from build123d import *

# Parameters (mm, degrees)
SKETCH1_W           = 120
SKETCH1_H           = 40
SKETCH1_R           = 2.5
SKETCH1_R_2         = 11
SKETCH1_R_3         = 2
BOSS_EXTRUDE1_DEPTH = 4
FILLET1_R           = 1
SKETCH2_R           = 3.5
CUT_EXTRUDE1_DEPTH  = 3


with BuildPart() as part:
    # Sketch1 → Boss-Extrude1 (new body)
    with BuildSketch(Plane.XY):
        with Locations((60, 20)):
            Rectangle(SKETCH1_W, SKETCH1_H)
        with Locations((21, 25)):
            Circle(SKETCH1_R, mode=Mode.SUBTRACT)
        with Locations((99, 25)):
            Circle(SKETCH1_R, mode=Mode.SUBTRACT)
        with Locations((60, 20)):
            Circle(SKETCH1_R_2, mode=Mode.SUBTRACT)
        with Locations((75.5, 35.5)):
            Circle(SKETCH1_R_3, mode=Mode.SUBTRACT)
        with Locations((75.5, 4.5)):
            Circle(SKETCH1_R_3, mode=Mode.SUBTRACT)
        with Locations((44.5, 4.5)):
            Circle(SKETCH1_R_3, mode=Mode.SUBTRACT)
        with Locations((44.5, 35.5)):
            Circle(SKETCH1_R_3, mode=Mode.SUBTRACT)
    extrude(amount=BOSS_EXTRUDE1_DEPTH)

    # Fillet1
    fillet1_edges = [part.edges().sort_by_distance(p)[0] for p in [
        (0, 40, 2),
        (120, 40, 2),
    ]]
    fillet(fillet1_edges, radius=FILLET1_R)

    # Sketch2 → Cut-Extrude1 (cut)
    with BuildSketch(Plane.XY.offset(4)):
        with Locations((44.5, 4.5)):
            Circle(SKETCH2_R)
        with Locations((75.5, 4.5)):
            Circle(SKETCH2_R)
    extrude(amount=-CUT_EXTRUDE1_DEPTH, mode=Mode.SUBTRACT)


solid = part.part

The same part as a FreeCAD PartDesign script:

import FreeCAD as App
import Part
import Sketcher
from FreeCAD import Vector


def edges_at(feature, points):
    """Names of the edges that pass closest to the given points."""
    edges = feature.Shape.Edges
    near = lambda p: min(range(len(edges)), key=lambda i: edges[i].distToShape(Part.Vertex(*p))[0])
    return sorted({f"Edge{near(p) + 1}" for p in points})


def add_polygon(sketch, points):
    """Adds a closed chain of lines whose ends are joined by coincident constraints."""
    first, n = sketch.GeometryCount, len(points)
    for a, b in zip(points, points[1:] + points[:1]):
        sketch.addGeometry(Part.LineSegment(App.Vector(*a, 0), App.Vector(*b, 0)), False)
    for i in range(n):
        sketch.addConstraint(Sketcher.Constraint("Coincident", first + i, 2, first + (i + 1) % n, 1))

doc = App.newDocument("Part")
params = doc.addObject("Spreadsheet::Sheet", "Params")
for row, (alias, value) in enumerate([
    ("sketch1_diameter", "4 mm"),
    ("sketch1_diameter2", "5 mm"),
    ("sketch1_diameter3", "22 mm"),
    ("sketch1_width", "120 mm"),
    ("sketch1_height", "40 mm"),
    ("pad1_length", "4 mm"),
    ("fillet_radius", "1 mm"),
    ("sketch2_diameter", "7 mm"),
    ("pocket1_length", "3 mm"),
], start=1):
    params.set(f"A{row}", alias)
    params.set(f"B{row}", "=" + value)
    params.setAlias(f"B{row}", alias)

body = doc.addObject("PartDesign::Body", "Body")

sketch1 = body.newObject("Sketcher::SketchObject", "Sketch")
sketch1.AttachmentSupport = (doc.getObject("XY_Plane"), [""])
sketch1.MapMode = "FlatFace"
add_polygon(sketch1, [(0, 40), (0, 0), (120, 0), (120, 40)])
sketch1.addGeometry(Part.Circle(Vector(44.5, 4.5, 0), Vector(0, 0, 1), 2), False)
sketch1.addGeometry(Part.Circle(Vector(75.5, 4.5, 0), Vector(0, 0, 1), 2), False)
sketch1.addGeometry(Part.Circle(Vector(21, 25, 0), Vector(0, 0, 1), 2.5), False)
sketch1.addGeometry(Part.Circle(Vector(44.5, 35.5, 0), Vector(0, 0, 1), 2), False)
sketch1.addGeometry(Part.Circle(Vector(60, 20, 0), Vector(0, 0, 1), 11), False)
sketch1.addGeometry(Part.Circle(Vector(99, 25, 0), Vector(0, 0, 1), 2.5), False)
sketch1.addGeometry(Part.Circle(Vector(75.5, 35.5, 0), Vector(0, 0, 1), 2), False)
sketch1.addConstraint(Sketcher.Constraint("Vertical", 0))
sketch1.addConstraint(Sketcher.Constraint("Horizontal", 1))
sketch1.addConstraint(Sketcher.Constraint("Vertical", 2))
sketch1.addConstraint(Sketcher.Constraint("Horizontal", 3))
sketch1.addConstraint(Sketcher.Constraint("Coincident", 0, 2, -1, 1))
sketch1.addConstraint(Sketcher.Constraint("Equal", 4, 5))
sketch1.addConstraint(Sketcher.Constraint("Equal", 5, 7))
sketch1.addConstraint(Sketcher.Constraint("Equal", 6, 9))
sketch1.addConstraint(Sketcher.Constraint("Equal", 7, 10))
sketch1.addConstraint(Sketcher.Constraint("Horizontal", 4, 3, 5, 3))
sketch1.addConstraint(Sketcher.Constraint("Horizontal", 6, 3, 9, 3))
sketch1.addConstraint(Sketcher.Constraint("Horizontal", 7, 3, 10, 3))
sketch1.addConstraint(Sketcher.Constraint("Vertical", 4, 3, 7, 3))
sketch1.addConstraint(Sketcher.Constraint("Vertical", 5, 3, 10, 3))
sketch1.addConstraint(Sketcher.Constraint("Diameter", 4, 4.0))
sketch1.addConstraint(Sketcher.Constraint("Diameter", 6, 5.0))
sketch1.addConstraint(Sketcher.Constraint("Diameter", 8, 22.0))
sketch1.addConstraint(Sketcher.Constraint("DistanceX", 1, 1, 1, 2, 120.0))
sketch1.addConstraint(Sketcher.Constraint("DistanceY", 0, 2, 0, 1, 40.0))
sketch1.addConstraint(Sketcher.Constraint("DistanceX", -1, 1, 6, 3, 21.0))
sketch1.addConstraint(Sketcher.Constraint("DistanceY", -1, 1, 6, 3, 25.0))
sketch1.addConstraint(Sketcher.Constraint("DistanceX", -1, 1, 8, 3, 60.0))
sketch1.addConstraint(Sketcher.Constraint("DistanceY", -1, 1, 8, 3, 20.0))
sketch1.addConstraint(Sketcher.Constraint("DistanceX", -1, 1, 9, 3, 99.0))
sketch1.addConstraint(Sketcher.Constraint("DistanceX", 4, 3, 5, 3, 31.0))
sketch1.addConstraint(Sketcher.Constraint("DistanceY", 4, 3, 7, 3, 31.0))
sketch1.addConstraint(Sketcher.Constraint("DistanceX", -1, 1, 4, 3, 44.5))
sketch1.addConstraint(Sketcher.Constraint("DistanceY", -1, 1, 4, 3, 4.5))
sketch1.setExpression("Constraints[18]", "Params.sketch1_diameter")
sketch1.setExpression("Constraints[19]", "Params.sketch1_diameter2")
sketch1.setExpression("Constraints[20]", "Params.sketch1_diameter3")
sketch1.setExpression("Constraints[21]", "Params.sketch1_width")
sketch1.setExpression("Constraints[22]", "Params.sketch1_height")
pad1 = body.newObject("PartDesign::Pad", "Pad")
pad1.Profile = sketch1
pad1.setExpression("Length", "Params.pad1_length")
doc.recompute()

fillet = body.newObject("PartDesign::Fillet", "Fillet")
fillet.Base = (pad1, edges_at(pad1, [(0, 40, 2), (120, 40, 2)]))
fillet.setExpression("Radius", "Params.fillet_radius")

sketch2 = body.newObject("Sketcher::SketchObject", "Sketch001")
sketch2.AttachmentSupport = (doc.getObject("XY_Plane"), [""])
sketch2.MapMode = "FlatFace"
sketch2.AttachmentOffset = App.Placement(Vector(0, 0, 4), App.Rotation())
sketch2.addGeometry(Part.Circle(Vector(44.5, 4.5, 0), Vector(0, 0, 1), 3.5), False)
sketch2.addGeometry(Part.Circle(Vector(75.5, 4.5, 0), Vector(0, 0, 1), 3.5), False)
sketch2.addConstraint(Sketcher.Constraint("Equal", 0, 1))
sketch2.addConstraint(Sketcher.Constraint("Horizontal", 0, 3, 1, 3))
sketch2.addConstraint(Sketcher.Constraint("Diameter", 0, 7.0))
sketch2.addConstraint(Sketcher.Constraint("DistanceX", 0, 3, 1, 3, 31.0))
sketch2.addConstraint(Sketcher.Constraint("DistanceX", -1, 1, 0, 3, 44.5))
sketch2.addConstraint(Sketcher.Constraint("DistanceY", -1, 1, 0, 3, 4.5))
sketch2.setExpression("Constraints[2]", "Params.sketch2_diameter")
pocket1 = body.newObject("PartDesign::Pocket", "Pocket")
pocket1.Profile = sketch2
pocket1.setExpression("Length", "Params.pocket1_length")

doc.recompute()
